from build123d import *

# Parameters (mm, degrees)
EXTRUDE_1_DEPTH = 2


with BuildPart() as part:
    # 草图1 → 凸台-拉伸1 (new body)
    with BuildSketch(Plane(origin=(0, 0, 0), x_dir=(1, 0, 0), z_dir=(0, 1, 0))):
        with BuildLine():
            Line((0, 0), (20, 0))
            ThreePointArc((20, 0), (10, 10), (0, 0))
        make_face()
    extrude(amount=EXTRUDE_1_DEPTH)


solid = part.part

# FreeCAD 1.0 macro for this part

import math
import FreeCAD as App
import Part
import Sketcher
from FreeCAD import Vector

doc = App.newDocument("Part")
body = doc.addObject("PartDesign::Body", "Body")

# Sketch on XZ plane
sketch1 = body.newObject("Sketcher::SketchObject", "Sketch")
sketch1.AttachmentSupport = (doc.getObject("XZ_Plane"), [""])
sketch1.MapMode = "FlatFace"
sketch1.addGeometry(Part.LineSegment(Vector(0, 0, 0), Vector(20, 0, 0)), False)
sketch1.addGeometry(Part.ArcOfCircle(Part.Circle(Vector(10, 0, 0), Vector(0, 0, 1), 10), math.radians(180), math.radians(360)), False)
sketch1.addConstraint(Sketcher.Constraint("Coincident", 0, 1, 1, 1))
sketch1.addConstraint(Sketcher.Constraint("Coincident", 1, 2, 0, 2))
sketch1.addConstraint(Sketcher.Constraint("Horizontal", 0))
sketch1.addConstraint(Sketcher.Constraint("Coincident", 0, 1, -1, 1))
sketch1.addConstraint(Sketcher.Constraint("PointOnObject", 1, 3, -1))
sketch1.addConstraint(Sketcher.Constraint("Radius", 1, 10.0))
pad1 = body.newObject("PartDesign::Pad", "Pad")
pad1.Profile = sketch1
pad1.Length = 2
pad1.Reversed = True

doc.recompute()
